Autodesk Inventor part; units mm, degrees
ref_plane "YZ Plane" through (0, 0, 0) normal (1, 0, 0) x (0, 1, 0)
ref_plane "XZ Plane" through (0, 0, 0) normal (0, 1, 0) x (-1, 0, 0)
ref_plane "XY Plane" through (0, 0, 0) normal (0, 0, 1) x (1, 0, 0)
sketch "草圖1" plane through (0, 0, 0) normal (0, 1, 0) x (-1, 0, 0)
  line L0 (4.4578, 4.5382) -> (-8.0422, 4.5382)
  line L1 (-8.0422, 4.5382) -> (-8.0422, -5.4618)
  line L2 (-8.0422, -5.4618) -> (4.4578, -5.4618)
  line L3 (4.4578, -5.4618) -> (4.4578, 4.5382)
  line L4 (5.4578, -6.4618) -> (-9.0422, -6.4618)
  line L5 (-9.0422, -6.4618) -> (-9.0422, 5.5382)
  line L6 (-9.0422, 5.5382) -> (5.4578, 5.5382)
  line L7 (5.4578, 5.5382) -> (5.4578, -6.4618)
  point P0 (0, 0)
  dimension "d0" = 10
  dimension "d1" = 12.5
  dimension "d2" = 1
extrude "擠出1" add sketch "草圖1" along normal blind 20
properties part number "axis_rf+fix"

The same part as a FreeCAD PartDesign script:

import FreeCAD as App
import Part
import Sketcher
from FreeCAD import Vector

doc = App.newDocument("Part")
body = doc.addObject("PartDesign::Body", "Body")

# Sketch on XZ plane
sketch1 = body.newObject("Sketcher::SketchObject", "Sketch")
sketch1.AttachmentSupport = (doc.getObject("XZ_Plane"), [""])
sketch1.MapMode = "FlatFace"
sketch1.addGeometry(Part.LineSegment(Vector(9, -6, 0), Vector(-5, -6, 0)), False)
sketch1.addGeometry(Part.LineSegment(Vector(-5, -6, 0), Vector(-5, 6, 0)), False)
sketch1.addGeometry(Part.LineSegment(Vector(-5, 6, 0), Vector(9, 6, 0)), False)
sketch1.addGeometry(Part.LineSegment(Vector(9, 6, 0), Vector(9, -6, 0)), False)
sketch1.addGeometry(Part.LineSegment(Vector(8, 5, 0), Vector(-4, 5, 0)), False)
sketch1.addGeometry(Part.LineSegment(Vector(-4, 5, 0), Vector(-4, -5, 0)), False)
sketch1.addGeometry(Part.LineSegment(Vector(-4, -5, 0), Vector(8, -5, 0)), False)
sketch1.addGeometry(Part.LineSegment(Vector(8, -5, 0), Vector(8, 5, 0)), False)
sketch1.addConstraint(Sketcher.Constraint("Coincident", 0, 2, 1, 1))
sketch1.addConstraint(Sketcher.Constraint("Coincident", 1, 2, 2, 1))
sketch1.addConstraint(Sketcher.Constraint("Coincident", 2, 2, 3, 1))
sketch1.addConstraint(Sketcher.Constraint("Coincident", 3, 2, 0, 1))
sketch1.addConstraint(Sketcher.Constraint("Coincident", 4, 2, 5, 1))
sketch1.addConstraint(Sketcher.Constraint("Coincident", 5, 2, 6, 1))
sketch1.addConstraint(Sketcher.Constraint("Coincident", 6, 2, 7, 1))
sketch1.addConstraint(Sketcher.Constraint("Coincident", 7, 2, 4, 1))
sketch1.addConstraint(Sketcher.Constraint("Horizontal", 0))
sketch1.addConstraint(Sketcher.Constraint("Vertical", 1))
sketch1.addConstraint(Sketcher.Constraint("Horizontal", 2))
sketch1.addConstraint(Sketcher.Constraint("Vertical", 3))
sketch1.addConstraint(Sketcher.Constraint("Horizontal", 4))
sketch1.addConstraint(Sketcher.Constraint("Vertical", 5))
sketch1.addConstraint(Sketcher.Constraint("Horizontal", 6))
sketch1.addConstraint(Sketcher.Constraint("Vertical", 7))
sketch1.addConstraint(Sketcher.Constraint("DistanceY", 5, 2, 5, 1, 10.0))
sketch1.addConstraint(Sketcher.Constraint("DistanceX", 4, 2, 4, 1, 12.5))
sketch1.addConstraint(Sketcher.Constraint("DistanceX", 1, 2, 4, 2, 1.0))
sketch1.addConstraint(Sketcher.Constraint("DistanceY", 4, 2, 1, 2, 1.0))
sketch1.addConstraint(Sketcher.Constraint("DistanceY", 0, 2, 5, 2, 1.0))
sketch1.addConstraint(Sketcher.Constraint("DistanceX", 6, 2, 3, 2, 1.0))
sketch1.addConstraint(Sketcher.Constraint("DistanceX", 0, 2, -1, 1, 5.4578))
sketch1.addConstraint(Sketcher.Constraint("DistanceY", 0, 2, -1, 1, 6.4618))
pad1 = body.newObject("PartDesign::Pad", "Pad")
pad1.Profile = sketch1
pad1.Length = 20
pad1.Reversed = True

doc.recompute()
